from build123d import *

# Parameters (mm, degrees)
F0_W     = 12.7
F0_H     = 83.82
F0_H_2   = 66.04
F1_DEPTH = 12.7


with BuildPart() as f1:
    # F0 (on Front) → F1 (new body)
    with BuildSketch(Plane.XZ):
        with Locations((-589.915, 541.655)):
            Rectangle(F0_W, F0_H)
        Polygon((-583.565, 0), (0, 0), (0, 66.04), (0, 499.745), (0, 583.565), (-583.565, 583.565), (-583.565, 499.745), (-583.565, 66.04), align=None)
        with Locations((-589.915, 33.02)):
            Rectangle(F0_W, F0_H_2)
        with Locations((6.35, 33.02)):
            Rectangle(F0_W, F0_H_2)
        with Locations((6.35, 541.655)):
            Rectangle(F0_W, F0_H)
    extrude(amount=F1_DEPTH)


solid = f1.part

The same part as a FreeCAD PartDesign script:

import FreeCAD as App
import Part
import Sketcher

V = App.Vector
Q = App.Units.Quantity

doc = App.newDocument("Part")
params = doc.addObject("Spreadsheet::Sheet", "Params")
for row, (alias, value) in enumerate([
    ("sketch1_width", "0.5 in"),
    ("sketch1_height", "3.3 in"),
    ("sketch1_height2", "2.6 in"),
    ("sketch1_width2", "23.975 in"),
    ("sketch1_height3", "17.075 in"),
    ("pad1_length", "0.5 in"),
], start=1):
    params.set(f"A{row}", alias)
    params.set(f"B{row}", "=" + value)
    params.setAlias(f"B{row}", alias)

body = doc.addObject("PartDesign::Body", "Body")

# Sketch on XZ plane
sketch1 = doc.addObject("Sketcher::SketchObject", "Sketch")
body.addObject(sketch1)
sketch1.AttachmentSupport = (doc.XZ_Plane, [""])
sketch1.MapMode = "FlatFace"
sketch1.addGeometry(Part.LineSegment(V(-596.265, 583.565, 0), V(-596.265, 499.745, 0)), False)
sketch1.addGeometry(Part.LineSegment(V(-596.265, 499.745, 0), V(-583.565, 499.745, 0)), False)
sketch1.addGeometry(Part.LineSegment(V(-583.565, 499.745, 0), V(-583.565, 66.04, 0)), False)
sketch1.addGeometry(Part.LineSegment(V(-583.565, 66.04, 0), V(-596.265, 66.04, 0)), False)
sketch1.addGeometry(Part.LineSegment(V(-596.265, 66.04, 0), V(-596.265, 0, 0)), False)
sketch1.addGeometry(Part.LineSegment(V(-596.265, 0, 0), V(12.7, 0, 0)), False)
sketch1.addGeometry(Part.LineSegment(V(12.7, 0, 0), V(12.7, 66.04, 0)), False)
sketch1.addGeometry(Part.LineSegment(V(12.7, 66.04, 0), V(0, 66.04, 0)), False)
sketch1.addGeometry(Part.LineSegment(V(0, 66.04, 0), V(0, 499.745, 0)), False)
sketch1.addGeometry(Part.LineSegment(V(0, 499.745, 0), V(12.7, 499.745, 0)), False)
sketch1.addGeometry(Part.LineSegment(V(12.7, 499.745, 0), V(12.7, 583.565, 0)), False)
sketch1.addGeometry(Part.LineSegment(V(12.7, 583.565, 0), V(-596.265, 583.565, 0)), False)
sketch1.addConstraint(Sketcher.Constraint("Coincident", 0, 2, 1, 1))
sketch1.addConstraint(Sketcher.Constraint("Coincident", 1, 2, 2, 1))
sketch1.addConstraint(Sketcher.Constraint("Coincident", 2, 2, 3, 1))
sketch1.addConstraint(Sketcher.Constraint("Coincident", 3, 2, 4, 1))
sketch1.addConstraint(Sketcher.Constraint("Coincident", 4, 2, 5, 1))
sketch1.addConstraint(Sketcher.Constraint("Coincident", 5, 2, 6, 1))
sketch1.addConstraint(Sketcher.Constraint("Coincident", 6, 2, 7, 1))
sketch1.addConstraint(Sketcher.Constraint("Coincident", 7, 2, 8, 1))
sketch1.addConstraint(Sketcher.Constraint("Coincident", 8, 2, 9, 1))
sketch1.addConstraint(Sketcher.Constraint("Coincident", 9, 2, 10, 1))
sketch1.addConstraint(Sketcher.Constraint("Coincident", 10, 2, 11, 1))
sketch1.addConstraint(Sketcher.Constraint("Coincident", 11, 2, 0, 1))
sketch1.addConstraint(Sketcher.Constraint("Vertical", 0))
sketch1.addConstraint(Sketcher.Constraint("Horizontal", 1))
sketch1.addConstraint(Sketcher.Constraint("Vertical", 2))
sketch1.addConstraint(Sketcher.Constraint("Horizontal", 3))
sketch1.addConstraint(Sketcher.Constraint("Vertical", 4))
sketch1.addConstraint(Sketcher.Constraint("Horizontal", 5))
sketch1.addConstraint(Sketcher.Constraint("Vertical", 6))
sketch1.addConstraint(Sketcher.Constraint("Horizontal", 7))
sketch1.addConstraint(Sketcher.Constraint("Vertical", 8))
sketch1.addConstraint(Sketcher.Constraint("Horizontal", 9))
sketch1.addConstraint(Sketcher.Constraint("Vertical", 10))
sketch1.addConstraint(Sketcher.Constraint("Horizontal", 11))
sketch1.addConstraint(Sketcher.Constraint("PointOnObject", 4, 2, -1))
sketch1.addConstraint(Sketcher.Constraint("PointOnObject", 7, 2, -2))
sketch1.addConstraint(Sketcher.Constraint("Horizontal", 3, 2, 6, 2))
sketch1.addConstraint(Sketcher.Constraint("Horizontal", 1, 2, 8, 2))
sketch1.addConstraint(Sketcher.Constraint("Vertical", 0, 2, 3, 2))
sketch1.addConstraint(Sketcher.Constraint("Vertical", 6, 2, 9, 2))
sketch1.addConstraint(Sketcher.Constraint("Equal", 3, 7))
sketch1.addConstraint(Sketcher.Constraint("DistanceX", 1, 1, 1, 2, Q("0.5 in")))
sketch1.addConstraint(Sketcher.Constraint("DistanceY", 0, 2, 0, 1, Q("3.3 in")))
sketch1.addConstraint(Sketcher.Constraint("DistanceY", 4, 2, 4, 1, Q("2.6 in")))
sketch1.addConstraint(Sketcher.Constraint("DistanceX", 5, 1, 5, 2, Q("23.975 in")))
sketch1.addConstraint(Sketcher.Constraint("DistanceY", 2, 2, 2, 1, Q("17.075 in")))
sketch1.setExpression("Constraints[31]", "Params.sketch1_width")
sketch1.setExpression("Constraints[32]", "Params.sketch1_height")
sketch1.setExpression("Constraints[33]", "Params.sketch1_height2")
sketch1.setExpression("Constraints[34]", "Params.sketch1_width2")
sketch1.setExpression("Constraints[35]", "Params.sketch1_height3")
pad1 = doc.addObject("PartDesign::Pad", "Pad")
body.addObject(pad1)
pad1.Profile = sketch1
pad1.setExpression("Length", "Params.pad1_length")

doc.recompute()
